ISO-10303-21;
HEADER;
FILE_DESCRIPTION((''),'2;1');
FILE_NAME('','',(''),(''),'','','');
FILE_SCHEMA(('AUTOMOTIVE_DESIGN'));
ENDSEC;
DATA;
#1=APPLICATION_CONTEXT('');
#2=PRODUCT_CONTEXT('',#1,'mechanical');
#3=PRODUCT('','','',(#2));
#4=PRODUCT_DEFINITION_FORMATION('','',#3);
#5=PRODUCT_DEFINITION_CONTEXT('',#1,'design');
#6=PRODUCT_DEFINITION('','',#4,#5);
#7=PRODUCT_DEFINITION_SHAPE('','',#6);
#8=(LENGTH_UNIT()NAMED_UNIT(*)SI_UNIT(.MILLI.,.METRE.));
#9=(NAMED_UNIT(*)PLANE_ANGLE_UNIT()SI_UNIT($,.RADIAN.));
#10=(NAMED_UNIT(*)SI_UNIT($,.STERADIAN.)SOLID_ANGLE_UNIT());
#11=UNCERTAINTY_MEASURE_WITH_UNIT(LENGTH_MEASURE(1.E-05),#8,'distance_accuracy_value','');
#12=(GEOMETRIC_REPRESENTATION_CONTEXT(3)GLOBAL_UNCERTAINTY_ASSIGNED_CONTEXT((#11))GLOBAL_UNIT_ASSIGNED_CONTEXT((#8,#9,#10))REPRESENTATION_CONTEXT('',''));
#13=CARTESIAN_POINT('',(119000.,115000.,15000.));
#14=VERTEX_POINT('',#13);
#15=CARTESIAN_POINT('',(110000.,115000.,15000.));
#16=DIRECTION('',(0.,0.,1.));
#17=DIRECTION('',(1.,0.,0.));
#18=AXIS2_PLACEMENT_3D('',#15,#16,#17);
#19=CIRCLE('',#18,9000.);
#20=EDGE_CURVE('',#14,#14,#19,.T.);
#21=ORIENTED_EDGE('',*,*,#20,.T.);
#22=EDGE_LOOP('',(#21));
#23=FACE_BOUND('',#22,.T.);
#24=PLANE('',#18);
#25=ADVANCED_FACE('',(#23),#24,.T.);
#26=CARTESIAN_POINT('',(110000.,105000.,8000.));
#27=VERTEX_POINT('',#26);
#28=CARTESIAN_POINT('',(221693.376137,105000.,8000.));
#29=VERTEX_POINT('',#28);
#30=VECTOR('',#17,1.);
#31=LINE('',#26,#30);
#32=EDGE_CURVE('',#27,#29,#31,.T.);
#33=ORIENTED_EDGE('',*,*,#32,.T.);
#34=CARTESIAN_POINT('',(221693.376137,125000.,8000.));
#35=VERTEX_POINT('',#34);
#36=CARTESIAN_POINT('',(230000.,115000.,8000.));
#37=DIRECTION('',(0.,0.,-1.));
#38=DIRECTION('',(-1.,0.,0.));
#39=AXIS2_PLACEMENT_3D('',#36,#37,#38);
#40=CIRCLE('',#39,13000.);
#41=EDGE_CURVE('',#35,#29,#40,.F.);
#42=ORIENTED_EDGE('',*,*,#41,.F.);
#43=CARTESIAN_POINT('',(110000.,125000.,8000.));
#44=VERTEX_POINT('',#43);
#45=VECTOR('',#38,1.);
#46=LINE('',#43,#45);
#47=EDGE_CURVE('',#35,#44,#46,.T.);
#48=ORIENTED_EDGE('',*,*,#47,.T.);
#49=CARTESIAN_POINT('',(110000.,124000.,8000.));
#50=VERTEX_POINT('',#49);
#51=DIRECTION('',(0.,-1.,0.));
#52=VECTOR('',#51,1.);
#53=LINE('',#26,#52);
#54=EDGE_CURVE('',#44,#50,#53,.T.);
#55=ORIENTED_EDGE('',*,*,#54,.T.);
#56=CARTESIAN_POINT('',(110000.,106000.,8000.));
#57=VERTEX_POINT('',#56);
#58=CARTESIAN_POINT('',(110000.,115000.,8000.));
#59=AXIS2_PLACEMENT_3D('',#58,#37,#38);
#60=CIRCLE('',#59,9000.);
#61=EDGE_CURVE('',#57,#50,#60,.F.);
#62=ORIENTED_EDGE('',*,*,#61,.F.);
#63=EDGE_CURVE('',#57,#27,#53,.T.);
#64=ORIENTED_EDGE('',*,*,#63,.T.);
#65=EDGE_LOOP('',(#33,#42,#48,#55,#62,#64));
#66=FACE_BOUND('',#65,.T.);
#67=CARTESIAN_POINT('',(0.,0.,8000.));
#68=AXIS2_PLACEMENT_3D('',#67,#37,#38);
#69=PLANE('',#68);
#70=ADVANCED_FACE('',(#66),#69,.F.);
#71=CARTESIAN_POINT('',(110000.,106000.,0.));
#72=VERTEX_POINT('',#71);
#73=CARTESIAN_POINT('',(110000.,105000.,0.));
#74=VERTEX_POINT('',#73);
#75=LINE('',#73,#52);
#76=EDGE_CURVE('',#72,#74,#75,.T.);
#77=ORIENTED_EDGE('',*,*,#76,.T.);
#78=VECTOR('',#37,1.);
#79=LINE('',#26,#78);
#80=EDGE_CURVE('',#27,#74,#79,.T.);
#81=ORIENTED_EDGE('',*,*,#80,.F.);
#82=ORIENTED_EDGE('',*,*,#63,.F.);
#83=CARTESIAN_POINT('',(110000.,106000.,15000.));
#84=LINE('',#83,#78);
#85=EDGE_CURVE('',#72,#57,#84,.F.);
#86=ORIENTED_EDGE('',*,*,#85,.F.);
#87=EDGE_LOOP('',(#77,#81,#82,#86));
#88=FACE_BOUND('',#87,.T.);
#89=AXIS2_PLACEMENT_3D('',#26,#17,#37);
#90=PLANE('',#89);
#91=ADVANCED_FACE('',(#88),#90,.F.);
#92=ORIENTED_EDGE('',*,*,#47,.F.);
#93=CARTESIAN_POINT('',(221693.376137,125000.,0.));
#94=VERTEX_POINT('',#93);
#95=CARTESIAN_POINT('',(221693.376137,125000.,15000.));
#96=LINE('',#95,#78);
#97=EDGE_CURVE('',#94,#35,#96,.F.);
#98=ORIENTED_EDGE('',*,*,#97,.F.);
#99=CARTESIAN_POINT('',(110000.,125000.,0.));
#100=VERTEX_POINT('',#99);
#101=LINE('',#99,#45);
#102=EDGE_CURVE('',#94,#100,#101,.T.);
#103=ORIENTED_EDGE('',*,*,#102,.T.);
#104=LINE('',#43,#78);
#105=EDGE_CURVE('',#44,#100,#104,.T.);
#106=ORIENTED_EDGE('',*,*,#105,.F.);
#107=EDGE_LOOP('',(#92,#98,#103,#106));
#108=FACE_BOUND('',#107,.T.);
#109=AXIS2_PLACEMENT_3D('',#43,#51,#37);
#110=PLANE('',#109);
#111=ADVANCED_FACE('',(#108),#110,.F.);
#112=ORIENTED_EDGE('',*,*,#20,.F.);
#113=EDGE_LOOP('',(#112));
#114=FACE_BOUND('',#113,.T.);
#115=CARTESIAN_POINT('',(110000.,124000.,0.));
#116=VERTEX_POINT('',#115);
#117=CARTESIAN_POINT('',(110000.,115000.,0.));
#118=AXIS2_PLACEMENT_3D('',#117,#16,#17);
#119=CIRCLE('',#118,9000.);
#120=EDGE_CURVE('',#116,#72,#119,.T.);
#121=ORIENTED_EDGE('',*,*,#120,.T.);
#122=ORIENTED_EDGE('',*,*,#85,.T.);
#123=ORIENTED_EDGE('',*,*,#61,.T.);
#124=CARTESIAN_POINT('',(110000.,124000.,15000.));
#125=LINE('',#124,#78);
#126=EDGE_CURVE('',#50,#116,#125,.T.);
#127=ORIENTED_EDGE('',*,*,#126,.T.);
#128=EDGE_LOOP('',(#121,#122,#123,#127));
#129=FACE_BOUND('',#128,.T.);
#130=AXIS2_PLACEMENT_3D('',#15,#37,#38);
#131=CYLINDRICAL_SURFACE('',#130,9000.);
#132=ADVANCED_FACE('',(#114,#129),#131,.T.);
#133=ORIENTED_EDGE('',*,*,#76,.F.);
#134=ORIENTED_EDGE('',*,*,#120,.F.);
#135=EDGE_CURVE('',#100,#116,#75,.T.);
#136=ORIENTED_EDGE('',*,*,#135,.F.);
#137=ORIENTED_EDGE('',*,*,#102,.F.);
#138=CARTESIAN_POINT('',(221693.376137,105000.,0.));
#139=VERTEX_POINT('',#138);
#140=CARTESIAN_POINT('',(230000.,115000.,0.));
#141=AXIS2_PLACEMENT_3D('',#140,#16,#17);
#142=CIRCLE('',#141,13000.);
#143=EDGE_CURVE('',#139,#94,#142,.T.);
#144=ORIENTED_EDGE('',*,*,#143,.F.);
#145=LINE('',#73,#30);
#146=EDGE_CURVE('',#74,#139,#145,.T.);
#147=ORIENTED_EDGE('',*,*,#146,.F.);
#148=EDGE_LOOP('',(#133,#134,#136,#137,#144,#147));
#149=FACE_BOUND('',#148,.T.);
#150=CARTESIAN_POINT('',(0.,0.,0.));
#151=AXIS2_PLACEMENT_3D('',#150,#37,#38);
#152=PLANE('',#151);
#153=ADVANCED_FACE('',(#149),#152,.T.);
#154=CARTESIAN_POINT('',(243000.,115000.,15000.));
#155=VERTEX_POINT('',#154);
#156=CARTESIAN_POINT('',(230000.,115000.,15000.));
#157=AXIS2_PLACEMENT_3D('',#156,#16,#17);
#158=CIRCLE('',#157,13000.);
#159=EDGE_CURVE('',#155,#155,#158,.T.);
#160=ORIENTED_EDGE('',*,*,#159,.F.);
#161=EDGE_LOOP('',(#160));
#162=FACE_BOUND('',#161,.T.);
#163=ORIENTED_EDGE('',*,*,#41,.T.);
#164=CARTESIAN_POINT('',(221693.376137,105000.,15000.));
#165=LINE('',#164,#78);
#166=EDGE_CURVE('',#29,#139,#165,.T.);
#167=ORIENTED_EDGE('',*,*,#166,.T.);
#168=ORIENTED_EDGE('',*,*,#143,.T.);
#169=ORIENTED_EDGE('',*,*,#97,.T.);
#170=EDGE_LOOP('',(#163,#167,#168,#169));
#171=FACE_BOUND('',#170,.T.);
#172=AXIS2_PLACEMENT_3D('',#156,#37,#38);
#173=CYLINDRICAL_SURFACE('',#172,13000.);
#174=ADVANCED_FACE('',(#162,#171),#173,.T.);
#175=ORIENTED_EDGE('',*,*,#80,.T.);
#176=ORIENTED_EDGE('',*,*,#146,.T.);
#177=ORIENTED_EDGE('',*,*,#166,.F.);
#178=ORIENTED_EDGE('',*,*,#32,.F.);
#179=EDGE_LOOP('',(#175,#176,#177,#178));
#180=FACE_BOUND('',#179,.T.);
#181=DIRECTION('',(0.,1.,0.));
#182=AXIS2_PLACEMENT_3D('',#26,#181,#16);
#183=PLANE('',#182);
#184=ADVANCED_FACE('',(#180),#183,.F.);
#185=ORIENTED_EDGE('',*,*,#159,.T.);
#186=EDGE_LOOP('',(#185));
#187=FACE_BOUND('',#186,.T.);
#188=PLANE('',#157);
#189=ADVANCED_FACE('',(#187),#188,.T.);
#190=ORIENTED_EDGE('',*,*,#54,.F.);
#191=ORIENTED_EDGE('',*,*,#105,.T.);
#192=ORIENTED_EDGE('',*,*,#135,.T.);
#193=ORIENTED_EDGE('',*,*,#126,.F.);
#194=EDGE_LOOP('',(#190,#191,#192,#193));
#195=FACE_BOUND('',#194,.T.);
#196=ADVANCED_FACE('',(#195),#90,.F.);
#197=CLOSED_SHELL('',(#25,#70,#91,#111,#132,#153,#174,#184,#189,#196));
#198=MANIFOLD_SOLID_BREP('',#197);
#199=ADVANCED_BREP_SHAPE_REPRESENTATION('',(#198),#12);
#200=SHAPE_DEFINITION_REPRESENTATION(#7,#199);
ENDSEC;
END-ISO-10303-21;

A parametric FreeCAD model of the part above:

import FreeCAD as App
import Part
import Sketcher

V = App.Vector


def add_polygon(sketch, points):
    """Adds a closed chain of lines whose ends are joined by coincident constraints."""
    first, n = sketch.GeometryCount, len(points)
    for a, b in zip(points, points[1:] + points[:1]):
        sketch.addGeometry(Part.LineSegment(App.Vector(*a, 0), App.Vector(*b, 0)), False)
    for i in range(n):
        sketch.addConstraint(Sketcher.Constraint("Coincident", first + i, 2, first + (i + 1) % n, 1))

doc = App.newDocument("Part")
body = doc.addObject("PartDesign::Body", "Body")

sketch1 = body.newObject("Sketcher::SketchObject", "Sketch")
sketch1.AttachmentSupport = (doc.getObject("XY_Plane"), [""])
sketch1.MapMode = "FlatFace"
add_polygon(sketch1, [(110000, 125000), (110000, 105000), (230000, 105000), (230000, 125000)])
sketch1.addConstraint(Sketcher.Constraint("Vertical", 0))
sketch1.addConstraint(Sketcher.Constraint("Horizontal", 1))
sketch1.addConstraint(Sketcher.Constraint("Vertical", 2))
sketch1.addConstraint(Sketcher.Constraint("Horizontal", 3))
sketch1.addConstraint(Sketcher.Constraint("DistanceX", 1, 1, 1, 2, 120000.0))
sketch1.addConstraint(Sketcher.Constraint("DistanceY", 0, 2, 0, 1, 20000.0))
sketch1.addConstraint(Sketcher.Constraint("DistanceX", -1, 1, 0, 2, 110000.0))
sketch1.addConstraint(Sketcher.Constraint("DistanceY", -1, 1, 0, 2, 105000.0))
pad1 = body.newObject("PartDesign::Pad", "Pad")
pad1.Profile = sketch1
pad1.Length = 8000

sketch2 = body.newObject("Sketcher::SketchObject", "Sketch001")
sketch2.AttachmentSupport = (doc.getObject("XY_Plane"), [""])
sketch2.MapMode = "FlatFace"
sketch2.addGeometry(Part.Circle(V(110000, 115000, 0), V(0, 0, 1), 9000), False)
sketch2.addConstraint(Sketcher.Constraint("Diameter", 0, 18000.0))
sketch2.addConstraint(Sketcher.Constraint("DistanceX", -1, 1, 0, 3, 110000.0))
sketch2.addConstraint(Sketcher.Constraint("DistanceY", -1, 1, 0, 3, 115000.0))
pad2 = body.newObject("PartDesign::Pad", "Pad001")
pad2.Profile = sketch2
pad2.Length = 15000

sketch3 = body.newObject("Sketcher::SketchObject", "Sketch002")
sketch3.AttachmentSupport = (doc.getObject("XY_Plane"), [""])
sketch3.MapMode = "FlatFace"
sketch3.addGeometry(Part.Circle(V(230000, 115000, 0), V(0, 0, 1), 13000), False)
sketch3.addConstraint(Sketcher.Constraint("Diameter", 0, 26000.0))
sketch3.addConstraint(Sketcher.Constraint("DistanceX", -1, 1, 0, 3, 230000.0))
sketch3.addConstraint(Sketcher.Constraint("DistanceY", -1, 1, 0, 3, 115000.0))
pad3 = body.newObject("PartDesign::Pad", "Pad002")
pad3.Profile = sketch3
pad3.Length = 15000

doc.recompute()
